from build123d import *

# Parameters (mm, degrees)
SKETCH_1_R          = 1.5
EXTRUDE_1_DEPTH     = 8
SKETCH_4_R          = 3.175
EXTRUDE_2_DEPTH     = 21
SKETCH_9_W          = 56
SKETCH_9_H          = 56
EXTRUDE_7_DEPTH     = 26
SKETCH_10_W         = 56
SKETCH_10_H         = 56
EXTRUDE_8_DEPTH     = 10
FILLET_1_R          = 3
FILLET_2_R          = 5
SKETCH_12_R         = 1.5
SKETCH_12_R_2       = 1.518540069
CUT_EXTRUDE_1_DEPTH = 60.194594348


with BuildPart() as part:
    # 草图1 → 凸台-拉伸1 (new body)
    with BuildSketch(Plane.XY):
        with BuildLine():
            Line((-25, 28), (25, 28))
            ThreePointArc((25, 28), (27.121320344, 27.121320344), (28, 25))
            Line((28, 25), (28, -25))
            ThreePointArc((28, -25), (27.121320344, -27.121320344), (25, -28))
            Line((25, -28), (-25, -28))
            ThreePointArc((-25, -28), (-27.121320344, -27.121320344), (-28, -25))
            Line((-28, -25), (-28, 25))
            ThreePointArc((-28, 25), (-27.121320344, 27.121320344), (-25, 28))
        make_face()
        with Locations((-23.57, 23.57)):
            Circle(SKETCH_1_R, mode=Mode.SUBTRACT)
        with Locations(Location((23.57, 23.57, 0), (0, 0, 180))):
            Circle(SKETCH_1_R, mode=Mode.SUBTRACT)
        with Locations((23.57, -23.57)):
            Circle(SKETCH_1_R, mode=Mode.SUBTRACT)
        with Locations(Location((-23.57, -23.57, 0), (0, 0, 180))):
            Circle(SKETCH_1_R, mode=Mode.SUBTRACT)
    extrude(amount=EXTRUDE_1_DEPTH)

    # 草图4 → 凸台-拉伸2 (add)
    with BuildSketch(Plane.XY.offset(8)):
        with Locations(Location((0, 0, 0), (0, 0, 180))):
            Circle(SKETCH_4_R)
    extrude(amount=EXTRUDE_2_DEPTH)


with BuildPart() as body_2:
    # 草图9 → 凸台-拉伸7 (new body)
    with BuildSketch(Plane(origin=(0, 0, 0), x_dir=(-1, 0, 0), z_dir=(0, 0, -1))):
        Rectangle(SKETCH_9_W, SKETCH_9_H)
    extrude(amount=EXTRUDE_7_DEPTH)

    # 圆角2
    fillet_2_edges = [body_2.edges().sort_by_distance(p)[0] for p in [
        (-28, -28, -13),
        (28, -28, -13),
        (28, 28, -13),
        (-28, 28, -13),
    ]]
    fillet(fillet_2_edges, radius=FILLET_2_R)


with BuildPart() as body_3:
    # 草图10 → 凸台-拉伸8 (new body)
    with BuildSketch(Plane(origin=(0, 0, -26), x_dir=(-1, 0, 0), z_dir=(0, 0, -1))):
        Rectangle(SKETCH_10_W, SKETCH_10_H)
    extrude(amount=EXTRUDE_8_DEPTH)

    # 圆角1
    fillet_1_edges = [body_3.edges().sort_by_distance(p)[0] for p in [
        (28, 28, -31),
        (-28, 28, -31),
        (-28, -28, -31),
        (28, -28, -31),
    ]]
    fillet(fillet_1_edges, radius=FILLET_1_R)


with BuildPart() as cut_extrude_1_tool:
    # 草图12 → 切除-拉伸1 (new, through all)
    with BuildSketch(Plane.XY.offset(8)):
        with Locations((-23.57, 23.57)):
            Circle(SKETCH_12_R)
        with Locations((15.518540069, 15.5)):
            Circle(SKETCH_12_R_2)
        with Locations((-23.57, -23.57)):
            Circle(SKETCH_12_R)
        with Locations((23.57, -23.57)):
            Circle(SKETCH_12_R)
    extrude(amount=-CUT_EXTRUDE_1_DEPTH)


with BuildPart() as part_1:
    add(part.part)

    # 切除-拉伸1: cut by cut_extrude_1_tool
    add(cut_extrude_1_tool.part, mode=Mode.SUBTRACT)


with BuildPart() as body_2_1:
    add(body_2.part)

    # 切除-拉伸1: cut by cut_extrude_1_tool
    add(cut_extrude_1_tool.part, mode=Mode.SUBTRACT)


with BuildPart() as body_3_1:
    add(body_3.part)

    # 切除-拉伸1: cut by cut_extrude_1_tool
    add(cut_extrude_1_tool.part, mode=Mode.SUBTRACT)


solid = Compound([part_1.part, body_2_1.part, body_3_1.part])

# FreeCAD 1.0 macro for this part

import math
import FreeCAD as App
import Part
import Sketcher

V = App.Vector
Q = App.Units.Quantity


def edges_at(feature, points):
    """Names of the edges that pass closest to the given points."""
    edges = feature.Shape.Edges
    near = lambda p: min(range(len(edges)), key=lambda i: edges[i].distToShape(Part.Vertex(*p))[0])
    return sorted({f"Edge{near(p) + 1}" for p in points})

doc = App.newDocument("Part")
body = doc.addObject("PartDesign::Body", "Body")

# Sketch on XY plane
sketch1 = doc.addObject("Sketcher::SketchObject", "Sketch")
body.addObject(sketch1)
sketch1.AttachmentSupport = (doc.XY_Plane, [""])
sketch1.MapMode = "FlatFace"
sketch1.addGeometry([
    Part.LineSegment(V(25, 28, 0), V(-25, 28, 0)),  # 0
    Part.ArcOfCircle(Part.Circle(V(-25, 25, 0), V(0, 0, 1), 3), math.radians(90), math.radians(180)),  # 1
    Part.LineSegment(V(-28, 25, 0), V(-28, -25, 0)),  # 2
    Part.ArcOfCircle(Part.Circle(V(-25, -25, 0), V(0, 0, 1), 3), math.radians(180), math.radians(270)),  # 3
    Part.LineSegment(V(-25, -28, 0), V(25, -28, 0)),  # 4
    Part.ArcOfCircle(Part.Circle(V(25, -25, 0), V(0, 0, 1), 3), math.radians(-90), math.radians(0)),  # 5
    Part.LineSegment(V(28, -25, 0), V(28, 25, 0)),  # 6
    Part.ArcOfCircle(Part.Circle(V(25, 25, 0), V(0, 0, 1), 3), math.radians(0), math.radians(90)),  # 7
    Part.Circle(V(23.6, -23.6, 0), V(0, 0, 1), 1.5),  # 8
    Part.Circle(V(-23.6, -23.6, 0), V(0, 0, 1), 1.5),  # 9
    Part.Circle(V(23.6, 23.6, 0), V(0, 0, 1), 1.5),  # 10
    Part.Circle(V(-23.6, 23.6, 0), V(0, 0, 1), 1.5),  # 11
], False)
sketch1.addConstraint([
    Sketcher.Constraint("Tangent", 0, 2, 1, 1),
    Sketcher.Constraint("Tangent", 1, 2, 2, 1),
    Sketcher.Constraint("Tangent", 2, 2, 3, 1),
    Sketcher.Constraint("Tangent", 3, 2, 4, 1),
    Sketcher.Constraint("Tangent", 4, 2, 5, 1),
    Sketcher.Constraint("Tangent", 5, 2, 6, 1),
    Sketcher.Constraint("Tangent", 6, 2, 7, 1),
    Sketcher.Constraint("Tangent", 7, 2, 0, 1),
    Sketcher.Constraint("Horizontal", 0),
    Sketcher.Constraint("Vertical", 2),
    Sketcher.Constraint("Horizontal", 4),
    Sketcher.Constraint("Vertical", 6),
    Sketcher.Constraint("Equal", 1, 3),
    Sketcher.Constraint("Equal", 3, 5),
    Sketcher.Constraint("Equal", 5, 7),
    Sketcher.Constraint("Equal", 8, 9),
    Sketcher.Constraint("Equal", 9, 10),
    Sketcher.Constraint("Equal", 10, 11),
    Sketcher.Constraint("Symmetric", 1, 3, 5, 3, -1, 1),
    Sketcher.Constraint("Symmetric", 9, 3, 10, 3, -1, 1),
    Sketcher.Constraint("Symmetric", 8, 3, 11, 3, -1, 1),
    Sketcher.Constraint("Symmetric", 8, 3, 9, 3, -2),
    Sketcher.Constraint("Equal", 4, 2),
    Sketcher.Constraint("Diameter", 8, Q("3 mm")),
    Sketcher.Constraint("Radius", 1, Q("3 mm")),
    Sketcher.Constraint("DistanceX", 0, 2, 0, 1, Q("50 mm")),
    Sketcher.Constraint("DistanceX", -1, 1, 8, 3, Q("23.57 mm")),
    Sketcher.Constraint("DistanceY", 8, 3, -1, 1, Q("23.57 mm")),
])
pad1 = doc.addObject("PartDesign::Pad", "Pad")
body.addObject(pad1)
pad1.Profile = sketch1
pad1.Length = 8

# Sketch on XY plane
sketch2 = doc.addObject("Sketcher::SketchObject", "Sketch001")
body.addObject(sketch2)
sketch2.AttachmentSupport = (doc.XY_Plane, [""])
sketch2.MapMode = "FlatFace"
sketch2.AttachmentOffset = App.Placement(V(0, 0, 8), App.Rotation())
sketch2.addGeometry(Part.Circle(V(0, 0, 0), V(0, 0, 1), 3.2), False)
sketch2.addConstraint([
    Sketcher.Constraint("Coincident", 0, 3, -1, 1),
    Sketcher.Constraint("Diameter", 0, Q("6.35 mm")),
])
pad2 = doc.addObject("PartDesign::Pad", "Pad001")
body.addObject(pad2)
pad2.Profile = sketch2
pad2.Length = 21
body2 = doc.addObject("PartDesign::Body", "Body001")

# Sketch on XY plane
sketch3 = doc.addObject("Sketcher::SketchObject", "Sketch002")
body2.addObject(sketch3)
sketch3.AttachmentSupport = (doc.getObject("XY_Plane001"), [""])
sketch3.MapMode = "FlatFace"
sketch3.addGeometry([
    Part.LineSegment(V(28, 28, 0), V(28, -28, 0)),
    Part.LineSegment(V(28, -28, 0), V(-28, -28, 0)),
    Part.LineSegment(V(-28, -28, 0), V(-28, 28, 0)),
    Part.LineSegment(V(-28, 28, 0), V(28, 28, 0)),
], False)
sketch3.addConstraint([
    Sketcher.Constraint("Coincident", 0, 2, 1, 1),
    Sketcher.Constraint("Coincident", 1, 2, 2, 1),
    Sketcher.Constraint("Coincident", 2, 2, 3, 1),
    Sketcher.Constraint("Coincident", 3, 2, 0, 1),
    Sketcher.Constraint("Vertical", 0),
    Sketcher.Constraint("Horizontal", 1),
    Sketcher.Constraint("Vertical", 2),
    Sketcher.Constraint("Horizontal", 3),
    Sketcher.Constraint("Symmetric", 0, 2, 2, 2, -1, 1),
    Sketcher.Constraint("Equal", 3, 0),
    Sketcher.Constraint("DistanceX", 1, 2, 1, 1, Q("56 mm")),
])
pad3 = doc.addObject("PartDesign::Pad", "Pad002")
body2.addObject(pad3)
pad3.Profile = sketch3
pad3.Length = 26
pad3.Reversed = True
doc.recompute()

fillet = doc.addObject("PartDesign::Fillet", "Fillet")
body2.addObject(fillet)
fillet.Base = (pad3, edges_at(pad3, [
    (-28, -28, -13),
    (28, -28, -13),
    (28, 28, -13),
    (-28, 28, -13),
]))
fillet.Radius = 5
body3 = doc.addObject("PartDesign::Body", "Body002")

# Sketch on XY plane
sketch4 = doc.addObject("Sketcher::SketchObject", "Sketch003")
body3.addObject(sketch4)
sketch4.AttachmentSupport = (doc.getObject("XY_Plane002"), [""])
sketch4.MapMode = "FlatFace"
sketch4.AttachmentOffset = App.Placement(V(0, 0, -26), App.Rotation())
sketch4.addGeometry([
    Part.LineSegment(V(28, 28, 0), V(28, -28, 0)),
    Part.LineSegment(V(28, -28, 0), V(-28, -28, 0)),
    Part.LineSegment(V(-28, -28, 0), V(-28, 28, 0)),
    Part.LineSegment(V(-28, 28, 0), V(28, 28, 0)),
], False)
sketch4.addConstraint([
    Sketcher.Constraint("Coincident", 0, 2, 1, 1),
    Sketcher.Constraint("Coincident", 1, 2, 2, 1),
    Sketcher.Constraint("Coincident", 2, 2, 3, 1),
    Sketcher.Constraint("Coincident", 3, 2, 0, 1),
    Sketcher.Constraint("Vertical", 0),
    Sketcher.Constraint("Horizontal", 1),
    Sketcher.Constraint("Vertical", 2),
    Sketcher.Constraint("Horizontal", 3),
    Sketcher.Constraint("Symmetric", 0, 2, 2, 2, -1, 1),
    Sketcher.Constraint("Equal", 3, 0),
    Sketcher.Constraint("DistanceX", 1, 2, 1, 1, Q("56 mm")),
])
pad4 = doc.addObject("PartDesign::Pad", "Pad003")
body3.addObject(pad4)
pad4.Profile = sketch4
pad4.Length = 10
pad4.Reversed = True
doc.recompute()

fillet2 = doc.addObject("PartDesign::Fillet", "Fillet001")
body3.addObject(fillet2)
fillet2.Base = (pad4, edges_at(pad4, [
    (28, 28, -31),
    (-28, 28, -31),
    (-28, -28, -31),
    (28, -28, -31),
]))
fillet2.Radius = 3
body4 = doc.addObject("PartDesign::Body", "Body003")
body4.AllowCompound = True

# Sketch on XY plane
sketch5 = doc.addObject("Sketcher::SketchObject", "Sketch004")
body4.addObject(sketch5)
sketch5.AttachmentSupport = (doc.getObject("XY_Plane003"), [""])
sketch5.MapMode = "FlatFace"
sketch5.AttachmentOffset = App.Placement(V(0, 0, 8), App.Rotation())
sketch5.addGeometry([
    Part.Circle(V(-23.6, 23.6, 0), V(0, 0, 1), 1.5),
    Part.Circle(V(15.5, 15.5, 0), V(0, 0, 1), 1.5),
    Part.Circle(V(-23.6, -23.6, 0), V(0, 0, 1), 1.5),
    Part.Circle(V(23.6, -23.6, 0), V(0, 0, 1), 1.5),
], False)
sketch5.addConstraint([
    Sketcher.Constraint("Equal", 0, 2),
    Sketcher.Constraint("Equal", 2, 3),
    Sketcher.Constraint("Symmetric", 0, 3, 3, 3, -1, 1),
    Sketcher.Constraint("Symmetric", 2, 3, 3, 3, -2),
    Sketcher.Constraint("Diameter", 0, Q("3 mm")),
    Sketcher.Constraint("DistanceY", -1, 1, 1, 3, Q("15.5 mm")),
    Sketcher.Constraint("Diameter", 1, Q("3.03708 mm")),
    Sketcher.Constraint("DistanceX", 0, 3, -1, 1, Q("23.57 mm")),
    Sketcher.Constraint("DistanceY", -1, 1, 0, 3, Q("23.57 mm")),
    Sketcher.Constraint("DistanceX", -1, 1, 1, 3, Q("15.51854 mm")),
])
pad5 = doc.addObject("PartDesign::Pad", "Pad004")
body4.addObject(pad5)
pad5.Profile = sketch5
pad5.Length = 60.194594
pad5.Reversed = True
doc.recompute()

body5 = doc.addObject("PartDesign::Body", "Body004")
body5.BaseFeature = body4
boolean = doc.addObject("PartDesign::Boolean", "Boolean")
body.addObject(boolean)
boolean.Type = "Cut"
boolean.addObjects([body5])
doc.recompute()

body6 = doc.addObject("PartDesign::Body", "Body005")
body6.BaseFeature = body4
boolean2 = doc.addObject("PartDesign::Boolean", "Boolean001")
body2.addObject(boolean2)
boolean2.Type = "Cut"
boolean2.addObjects([body6])
doc.recompute()

boolean3 = doc.addObject("PartDesign::Boolean", "Boolean002")
body3.addObject(boolean3)
boolean3.Type = "Cut"
boolean3.addObjects([body4])

doc.recompute()
